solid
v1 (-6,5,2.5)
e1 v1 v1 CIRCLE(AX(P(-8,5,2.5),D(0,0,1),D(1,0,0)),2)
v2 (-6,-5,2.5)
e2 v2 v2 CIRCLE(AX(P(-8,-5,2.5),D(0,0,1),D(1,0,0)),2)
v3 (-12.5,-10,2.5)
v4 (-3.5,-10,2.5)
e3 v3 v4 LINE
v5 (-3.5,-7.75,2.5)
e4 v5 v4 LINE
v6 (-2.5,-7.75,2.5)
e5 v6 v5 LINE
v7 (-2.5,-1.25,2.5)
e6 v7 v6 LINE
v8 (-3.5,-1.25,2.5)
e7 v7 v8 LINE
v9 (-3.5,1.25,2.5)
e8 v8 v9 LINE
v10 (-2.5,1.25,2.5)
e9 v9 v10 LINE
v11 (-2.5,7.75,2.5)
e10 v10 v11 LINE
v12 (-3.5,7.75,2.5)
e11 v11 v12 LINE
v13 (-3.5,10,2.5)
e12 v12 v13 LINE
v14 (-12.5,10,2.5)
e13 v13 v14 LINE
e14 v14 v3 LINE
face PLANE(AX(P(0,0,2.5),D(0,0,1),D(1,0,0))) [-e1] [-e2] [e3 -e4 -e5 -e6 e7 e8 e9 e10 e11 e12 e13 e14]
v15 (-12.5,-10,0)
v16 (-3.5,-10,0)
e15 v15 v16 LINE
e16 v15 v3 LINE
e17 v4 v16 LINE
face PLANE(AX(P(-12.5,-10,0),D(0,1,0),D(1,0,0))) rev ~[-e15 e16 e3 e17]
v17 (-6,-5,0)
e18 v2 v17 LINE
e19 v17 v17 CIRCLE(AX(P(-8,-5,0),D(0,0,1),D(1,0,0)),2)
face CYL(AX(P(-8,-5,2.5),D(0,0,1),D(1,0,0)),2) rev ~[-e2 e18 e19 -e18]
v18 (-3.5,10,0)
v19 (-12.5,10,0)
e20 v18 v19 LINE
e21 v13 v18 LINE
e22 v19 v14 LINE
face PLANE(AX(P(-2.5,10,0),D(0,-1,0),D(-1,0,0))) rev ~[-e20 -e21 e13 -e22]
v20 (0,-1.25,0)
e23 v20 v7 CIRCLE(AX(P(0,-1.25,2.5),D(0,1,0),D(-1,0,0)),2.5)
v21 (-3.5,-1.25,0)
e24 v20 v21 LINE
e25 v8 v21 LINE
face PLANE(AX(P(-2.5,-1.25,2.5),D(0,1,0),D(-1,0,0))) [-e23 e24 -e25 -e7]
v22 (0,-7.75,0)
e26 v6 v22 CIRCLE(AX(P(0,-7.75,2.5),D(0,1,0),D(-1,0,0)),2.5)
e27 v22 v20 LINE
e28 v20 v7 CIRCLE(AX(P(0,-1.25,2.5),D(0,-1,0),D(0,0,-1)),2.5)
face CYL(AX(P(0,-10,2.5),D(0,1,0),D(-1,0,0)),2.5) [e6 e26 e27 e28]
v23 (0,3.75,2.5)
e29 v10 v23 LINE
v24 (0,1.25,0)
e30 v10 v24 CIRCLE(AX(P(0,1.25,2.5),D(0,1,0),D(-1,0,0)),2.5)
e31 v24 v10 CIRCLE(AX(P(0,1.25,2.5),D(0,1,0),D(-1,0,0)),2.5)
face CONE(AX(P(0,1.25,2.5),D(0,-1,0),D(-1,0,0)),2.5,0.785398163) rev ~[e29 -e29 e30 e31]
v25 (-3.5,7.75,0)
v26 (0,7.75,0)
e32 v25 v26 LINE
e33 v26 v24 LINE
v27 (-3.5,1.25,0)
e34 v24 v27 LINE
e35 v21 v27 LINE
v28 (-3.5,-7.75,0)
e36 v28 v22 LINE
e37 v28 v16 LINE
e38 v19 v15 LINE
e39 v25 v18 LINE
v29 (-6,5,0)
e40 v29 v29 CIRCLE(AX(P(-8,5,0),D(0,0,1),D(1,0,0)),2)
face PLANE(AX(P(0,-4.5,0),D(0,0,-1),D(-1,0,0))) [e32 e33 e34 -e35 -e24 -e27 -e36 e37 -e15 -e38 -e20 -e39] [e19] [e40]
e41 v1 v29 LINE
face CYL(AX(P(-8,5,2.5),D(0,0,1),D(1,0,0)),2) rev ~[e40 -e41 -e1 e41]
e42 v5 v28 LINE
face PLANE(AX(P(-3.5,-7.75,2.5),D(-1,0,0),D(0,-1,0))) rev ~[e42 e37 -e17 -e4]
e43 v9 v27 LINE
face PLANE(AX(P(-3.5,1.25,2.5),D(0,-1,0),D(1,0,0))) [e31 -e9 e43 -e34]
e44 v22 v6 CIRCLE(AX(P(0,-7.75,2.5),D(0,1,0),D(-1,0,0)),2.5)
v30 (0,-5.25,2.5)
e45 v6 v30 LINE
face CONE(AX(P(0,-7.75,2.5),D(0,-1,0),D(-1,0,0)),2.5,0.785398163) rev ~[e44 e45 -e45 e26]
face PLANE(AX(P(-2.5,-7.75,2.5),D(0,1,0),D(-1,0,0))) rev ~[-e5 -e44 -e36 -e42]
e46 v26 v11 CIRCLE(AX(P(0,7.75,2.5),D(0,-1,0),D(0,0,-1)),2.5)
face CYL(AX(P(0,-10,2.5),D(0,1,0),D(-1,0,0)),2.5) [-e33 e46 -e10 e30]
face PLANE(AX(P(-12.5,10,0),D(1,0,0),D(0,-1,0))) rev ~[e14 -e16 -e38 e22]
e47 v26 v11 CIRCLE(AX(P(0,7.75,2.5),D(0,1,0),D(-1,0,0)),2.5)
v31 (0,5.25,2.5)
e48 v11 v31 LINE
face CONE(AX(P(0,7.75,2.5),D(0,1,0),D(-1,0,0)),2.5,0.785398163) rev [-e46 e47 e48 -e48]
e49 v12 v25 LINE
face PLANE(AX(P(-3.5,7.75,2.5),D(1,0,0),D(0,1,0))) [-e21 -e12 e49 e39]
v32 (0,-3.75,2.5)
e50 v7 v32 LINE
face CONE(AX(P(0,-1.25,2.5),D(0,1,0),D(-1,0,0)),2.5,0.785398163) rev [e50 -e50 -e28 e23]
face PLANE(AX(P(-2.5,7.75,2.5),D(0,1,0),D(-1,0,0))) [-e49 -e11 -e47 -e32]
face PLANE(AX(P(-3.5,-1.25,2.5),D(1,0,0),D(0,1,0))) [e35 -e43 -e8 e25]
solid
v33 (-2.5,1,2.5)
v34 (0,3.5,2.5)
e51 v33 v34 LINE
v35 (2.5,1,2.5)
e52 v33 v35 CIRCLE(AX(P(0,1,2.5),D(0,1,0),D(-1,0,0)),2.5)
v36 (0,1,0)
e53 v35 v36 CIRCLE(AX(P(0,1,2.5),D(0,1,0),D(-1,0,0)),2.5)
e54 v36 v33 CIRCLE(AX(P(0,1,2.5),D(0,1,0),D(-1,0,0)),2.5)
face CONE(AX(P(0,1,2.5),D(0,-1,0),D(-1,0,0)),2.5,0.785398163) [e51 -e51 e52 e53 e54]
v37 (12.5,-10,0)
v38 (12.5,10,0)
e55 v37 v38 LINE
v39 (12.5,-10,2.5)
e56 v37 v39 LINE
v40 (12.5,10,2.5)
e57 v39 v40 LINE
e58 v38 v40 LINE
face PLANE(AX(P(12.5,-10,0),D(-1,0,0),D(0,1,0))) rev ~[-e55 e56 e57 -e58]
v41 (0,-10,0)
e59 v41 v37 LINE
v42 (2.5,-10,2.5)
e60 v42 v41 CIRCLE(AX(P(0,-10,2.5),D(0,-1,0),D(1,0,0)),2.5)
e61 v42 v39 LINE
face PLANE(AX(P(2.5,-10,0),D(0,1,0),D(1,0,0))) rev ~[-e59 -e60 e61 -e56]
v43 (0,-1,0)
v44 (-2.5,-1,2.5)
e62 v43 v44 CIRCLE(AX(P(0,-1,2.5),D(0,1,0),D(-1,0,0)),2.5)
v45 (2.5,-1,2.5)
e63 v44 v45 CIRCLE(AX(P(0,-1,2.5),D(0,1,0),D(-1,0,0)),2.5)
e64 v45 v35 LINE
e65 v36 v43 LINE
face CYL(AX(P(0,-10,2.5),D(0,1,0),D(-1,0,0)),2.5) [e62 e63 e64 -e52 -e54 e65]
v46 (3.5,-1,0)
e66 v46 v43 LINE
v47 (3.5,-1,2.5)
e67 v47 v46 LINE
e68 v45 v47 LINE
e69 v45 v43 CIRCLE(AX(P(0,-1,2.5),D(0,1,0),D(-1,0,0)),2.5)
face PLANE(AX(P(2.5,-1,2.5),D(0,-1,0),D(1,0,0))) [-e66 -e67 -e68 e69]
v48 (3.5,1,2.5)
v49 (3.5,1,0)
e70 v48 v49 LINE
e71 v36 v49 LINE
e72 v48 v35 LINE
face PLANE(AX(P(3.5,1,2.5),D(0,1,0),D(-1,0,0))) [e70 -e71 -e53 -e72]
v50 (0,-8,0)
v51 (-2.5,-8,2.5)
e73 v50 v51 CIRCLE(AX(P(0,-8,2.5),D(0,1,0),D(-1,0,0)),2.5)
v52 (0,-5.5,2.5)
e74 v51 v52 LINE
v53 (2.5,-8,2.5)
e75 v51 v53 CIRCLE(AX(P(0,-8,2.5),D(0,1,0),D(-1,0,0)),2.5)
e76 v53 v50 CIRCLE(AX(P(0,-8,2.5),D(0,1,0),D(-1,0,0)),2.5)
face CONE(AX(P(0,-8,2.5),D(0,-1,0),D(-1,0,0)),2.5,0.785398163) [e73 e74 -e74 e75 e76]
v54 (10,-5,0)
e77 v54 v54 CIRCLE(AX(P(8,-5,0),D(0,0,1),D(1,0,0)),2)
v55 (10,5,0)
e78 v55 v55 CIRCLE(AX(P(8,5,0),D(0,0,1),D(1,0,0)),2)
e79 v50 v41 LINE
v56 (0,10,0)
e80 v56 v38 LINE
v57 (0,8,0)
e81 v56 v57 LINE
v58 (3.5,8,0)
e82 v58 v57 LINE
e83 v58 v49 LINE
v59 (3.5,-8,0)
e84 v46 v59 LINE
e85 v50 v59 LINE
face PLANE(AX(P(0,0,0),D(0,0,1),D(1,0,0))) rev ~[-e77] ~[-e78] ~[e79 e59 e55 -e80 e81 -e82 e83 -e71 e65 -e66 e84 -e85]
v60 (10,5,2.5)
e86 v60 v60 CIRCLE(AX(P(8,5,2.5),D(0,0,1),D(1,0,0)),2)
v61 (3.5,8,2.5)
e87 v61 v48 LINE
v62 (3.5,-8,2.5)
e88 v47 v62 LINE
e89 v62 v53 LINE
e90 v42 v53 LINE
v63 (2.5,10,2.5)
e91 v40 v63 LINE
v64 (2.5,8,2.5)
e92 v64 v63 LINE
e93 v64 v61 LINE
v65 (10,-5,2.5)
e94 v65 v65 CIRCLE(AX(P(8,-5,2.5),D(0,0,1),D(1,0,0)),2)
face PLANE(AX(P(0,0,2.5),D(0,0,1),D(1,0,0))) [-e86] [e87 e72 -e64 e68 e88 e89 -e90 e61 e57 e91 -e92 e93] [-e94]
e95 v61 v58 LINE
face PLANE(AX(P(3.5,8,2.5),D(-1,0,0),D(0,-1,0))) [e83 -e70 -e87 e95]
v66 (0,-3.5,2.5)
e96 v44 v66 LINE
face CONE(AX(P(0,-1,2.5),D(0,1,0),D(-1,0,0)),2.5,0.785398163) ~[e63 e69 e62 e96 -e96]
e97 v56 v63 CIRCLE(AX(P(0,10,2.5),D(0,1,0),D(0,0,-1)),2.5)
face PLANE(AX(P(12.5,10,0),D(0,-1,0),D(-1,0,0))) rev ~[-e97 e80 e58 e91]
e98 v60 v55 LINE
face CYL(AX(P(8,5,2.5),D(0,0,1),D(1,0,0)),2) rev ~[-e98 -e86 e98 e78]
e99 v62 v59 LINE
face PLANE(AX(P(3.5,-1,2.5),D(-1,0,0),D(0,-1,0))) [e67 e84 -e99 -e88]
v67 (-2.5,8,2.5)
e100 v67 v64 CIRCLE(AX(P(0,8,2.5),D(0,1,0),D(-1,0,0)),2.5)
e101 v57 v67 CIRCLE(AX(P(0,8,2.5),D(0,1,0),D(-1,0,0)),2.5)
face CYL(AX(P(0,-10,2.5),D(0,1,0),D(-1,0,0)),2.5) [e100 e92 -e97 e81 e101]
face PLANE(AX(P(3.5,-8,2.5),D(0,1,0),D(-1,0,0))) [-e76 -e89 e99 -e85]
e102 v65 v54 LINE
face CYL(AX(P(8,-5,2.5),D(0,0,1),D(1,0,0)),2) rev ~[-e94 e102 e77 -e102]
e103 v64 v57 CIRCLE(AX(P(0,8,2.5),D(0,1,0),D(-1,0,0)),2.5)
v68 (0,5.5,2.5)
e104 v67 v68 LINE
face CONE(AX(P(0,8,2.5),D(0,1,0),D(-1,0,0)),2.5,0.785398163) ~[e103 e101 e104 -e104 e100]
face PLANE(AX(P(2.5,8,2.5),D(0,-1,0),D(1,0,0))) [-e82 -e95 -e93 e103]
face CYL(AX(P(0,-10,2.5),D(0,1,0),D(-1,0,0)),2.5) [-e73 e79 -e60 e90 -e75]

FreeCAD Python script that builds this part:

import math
import FreeCAD as App
import Part
import Sketcher

V = App.Vector

doc = App.newDocument("Part")
params = doc.addObject("Spreadsheet::Sheet", "Params")
for row, (alias, value) in enumerate([
    ("sketch1_height", "20 mm"),
    ("pad1_length", "2.5 mm"),
    ("sketch2_height", "2 mm"),
    ("sketch2_width", "2.5 mm"),
    ("revolution_angle", "360 deg"),
    ("sketch3_width", "1 mm"),
    ("sketch3_height", "7 mm"),
    ("sketch3_height2", "2.5 mm"),
    ("sketch3_height3", "2.25 mm"),
    ("pocket1_length", "2.5 mm"),
    ("sketch4_diameter", "4 mm"),
    ("pocket2_length", "2.5 mm"),
    ("sketch5_height", "2 mm"),
    ("sketch5_width", "2.5 mm"),
    ("sketch5_height2", "1.5 mm"),
    ("pad2_length", "2.5 mm"),
    ("sketch6_radius", "2.5 mm"),
    ("pad3_length", "6.5 mm"),
    ("sketch7_radius", "2.5 mm"),
    ("pad4_length", "6.5 mm"),
], start=1):
    params.set(f"A{row}", alias)
    params.set(f"B{row}", "=" + value)
    params.setAlias(f"B{row}", alias)

body = doc.addObject("PartDesign::Body", "Body")
body.AllowCompound = True

# Sketch on XY plane
sketch1 = body.newObject("Sketcher::SketchObject", "Sketch")
sketch1.AttachmentSupport = (doc.getObject("XY_Plane"), [""])
sketch1.MapMode = "FlatFace"
sketch1.addGeometry(Part.LineSegment(V(2, -10, 0), V(12, -10, 0)), False)
sketch1.addGeometry(Part.LineSegment(V(12, -10, 0), V(12, 10, 0)), False)
sketch1.addGeometry(Part.LineSegment(V(12, 10, 0), V(2, 10, 0)), False)
sketch1.addGeometry(Part.LineSegment(V(2, 10, 0), V(2, -10, 0)), False)
sketch1.addGeometry(Part.LineSegment(V(-2, 10, 0), V(-12, 10, 0)), False)
sketch1.addGeometry(Part.LineSegment(V(-12, 10, 0), V(-12, -10, 0)), False)
sketch1.addGeometry(Part.LineSegment(V(-12, -10, 0), V(-2, -10, 0)), False)
sketch1.addGeometry(Part.LineSegment(V(-2, -10, 0), V(-2, 10, 0)), False)
sketch1.addConstraint(Sketcher.Constraint("Coincident", 0, 2, 1, 1))
sketch1.addConstraint(Sketcher.Constraint("Coincident", 1, 2, 2, 1))
sketch1.addConstraint(Sketcher.Constraint("Coincident", 2, 2, 3, 1))
sketch1.addConstraint(Sketcher.Constraint("Coincident", 3, 2, 0, 1))
sketch1.addConstraint(Sketcher.Constraint("Coincident", 4, 2, 5, 1))
sketch1.addConstraint(Sketcher.Constraint("Coincident", 5, 2, 6, 1))
sketch1.addConstraint(Sketcher.Constraint("Coincident", 6, 2, 7, 1))
sketch1.addConstraint(Sketcher.Constraint("Coincident", 7, 2, 4, 1))
sketch1.addConstraint(Sketcher.Constraint("Horizontal", 0))
sketch1.addConstraint(Sketcher.Constraint("Vertical", 1))
sketch1.addConstraint(Sketcher.Constraint("Horizontal", 2))
sketch1.addConstraint(Sketcher.Constraint("Vertical", 3))
sketch1.addConstraint(Sketcher.Constraint("Horizontal", 4))
sketch1.addConstraint(Sketcher.Constraint("Vertical", 5))
sketch1.addConstraint(Sketcher.Constraint("Horizontal", 6))
sketch1.addConstraint(Sketcher.Constraint("Vertical", 7))
sketch1.addConstraint(Sketcher.Constraint("Symmetric", 0, 2, 4, 2, -1, 1))
sketch1.addConstraint(Sketcher.Constraint("Symmetric", 2, 2, 6, 2, -1, 1))
sketch1.addConstraint(Sketcher.Constraint("Horizontal", 2, 2, 4, 2))
sketch1.addConstraint(Sketcher.Constraint("DistanceY", 1, 1, 1, 2, 20.0))
sketch1.addConstraint(Sketcher.Constraint("DistanceX", 4, 2, 1, 2, 25.0))
sketch1.addConstraint(Sketcher.Constraint("DistanceX", 6, 2, 3, 2, 5.0))
sketch1.setExpression("Constraints[19]", "Params.sketch1_height")
pad1 = body.newObject("PartDesign::Pad", "Pad")
pad1.Profile = sketch1
pad1.setExpression("Length", "Params.pad1_length")

# Sketch on XY plane
sketch2 = body.newObject("Sketcher::SketchObject", "Sketch001")
sketch2.AttachmentSupport = (doc.getObject("XY_Plane"), [""])
sketch2.MapMode = "FlatFace"
sketch2.AttachmentOffset = App.Placement(V(0, 0, 2.5), App.Rotation())
sketch2.addGeometry(Part.LineSegment(V(-2.5, 10, 0), V(-2.5, 8, 0)), False)
sketch2.addGeometry(Part.LineSegment(V(-2.5, 8, 0), V(0, 5.5, 0)), False)
sketch2.addGeometry(Part.LineSegment(V(0, 5.5, 0), V(0, 10, 0)), False)
sketch2.addGeometry(Part.LineSegment(V(0, 10, 0), V(-2.5, 10, 0)), False)
sketch2.addGeometry(Part.LineSegment(V(-2.5, 7.8, 0), V(-2.5, 1.2, 0)), False)
sketch2.addGeometry(Part.LineSegment(V(-2.5, 1.2, 0), V(0, 3.8, 0)), False)
sketch2.addGeometry(Part.LineSegment(V(0, 3.8, 0), V(0, 5.2, 0)), False)
sketch2.addGeometry(Part.LineSegment(V(0, 5.2, 0), V(-2.5, 7.8, 0)), False)
sketch2.addGeometry(Part.LineSegment(V(-2.5, 1, 0), V(-2.5, -1, 0)), False)
sketch2.addGeometry(Part.LineSegment(V(-2.5, -1, 0), V(0, -3.5, 0)), False)
sketch2.addGeometry(Part.LineSegment(V(0, -3.5, 0), V(0, 3.5, 0)), False)
sketch2.addGeometry(Part.LineSegment(V(0, 3.5, 0), V(-2.5, 1, 0)), False)
sketch2.addGeometry(Part.LineSegment(V(-2.5, -1.2, 0), V(-2.5, -7.8, 0)), False)
sketch2.addGeometry(Part.LineSegment(V(-2.5, -7.8, 0), V(0, -5.2, 0)), False)
sketch2.addGeometry(Part.LineSegment(V(0, -5.2, 0), V(0, -3.8, 0)), False)
sketch2.addGeometry(Part.LineSegment(V(0, -3.8, 0), V(-2.5, -1.2, 0)), False)
sketch2.addGeometry(Part.LineSegment(V(-2.5, -8, 0), V(-2.5, -10, 0)), False)
sketch2.addGeometry(Part.LineSegment(V(-2.5, -10, 0), V(0, -10, 0)), False)
sketch2.addGeometry(Part.LineSegment(V(0, -10, 0), V(0, -5.5, 0)), False)
sketch2.addGeometry(Part.LineSegment(V(0, -5.5, 0), V(-2.5, -8, 0)), False)
sketch2.addConstraint(Sketcher.Constraint("Coincident", 0, 2, 1, 1))
sketch2.addConstraint(Sketcher.Constraint("Coincident", 1, 2, 2, 1))
sketch2.addConstraint(Sketcher.Constraint("Coincident", 2, 2, 3, 1))
sketch2.addConstraint(Sketcher.Constraint("Coincident", 3, 2, 0, 1))
sketch2.addConstraint(Sketcher.Constraint("Coincident", 4, 2, 5, 1))
sketch2.addConstraint(Sketcher.Constraint("Coincident", 5, 2, 6, 1))
sketch2.addConstraint(Sketcher.Constraint("Coincident", 6, 2, 7, 1))
sketch2.addConstraint(Sketcher.Constraint("Coincident", 7, 2, 4, 1))
sketch2.addConstraint(Sketcher.Constraint("Coincident", 8, 2, 9, 1))
sketch2.addConstraint(Sketcher.Constraint("Coincident", 9, 2, 10, 1))
sketch2.addConstraint(Sketcher.Constraint("Coincident", 10, 2, 11, 1))
sketch2.addConstraint(Sketcher.Constraint("Coincident", 11, 2, 8, 1))
sketch2.addConstraint(Sketcher.Constraint("Coincident", 12, 2, 13, 1))
sketch2.addConstraint(Sketcher.Constraint("Coincident", 13, 2, 14, 1))
sketch2.addConstraint(Sketcher.Constraint("Coincident", 14, 2, 15, 1))
sketch2.addConstraint(Sketcher.Constraint("Coincident", 15, 2, 12, 1))
sketch2.addConstraint(Sketcher.Constraint("Coincident", 16, 2, 17, 1))
sketch2.addConstraint(Sketcher.Constraint("Coincident", 17, 2, 18, 1))
sketch2.addConstraint(Sketcher.Constraint("Coincident", 18, 2, 19, 1))
sketch2.addConstraint(Sketcher.Constraint("Coincident", 19, 2, 16, 1))
sketch2.addConstraint(Sketcher.Constraint("Vertical", 0))
sketch2.addConstraint(Sketcher.Constraint("Vertical", 2))
sketch2.addConstraint(Sketcher.Constraint("Horizontal", 3))
sketch2.addConstraint(Sketcher.Constraint("Vertical", 4))
sketch2.addConstraint(Sketcher.Constraint("Vertical", 6))
sketch2.addConstraint(Sketcher.Constraint("Vertical", 8))
sketch2.addConstraint(Sketcher.Constraint("Vertical", 10))
sketch2.addConstraint(Sketcher.Constraint("Vertical", 12))
sketch2.addConstraint(Sketcher.Constraint("Vertical", 14))
sketch2.addConstraint(Sketcher.Constraint("Vertical", 16))
sketch2.addConstraint(Sketcher.Constraint("Horizontal", 17))
sketch2.addConstraint(Sketcher.Constraint("Vertical", 18))
sketch2.addConstraint(Sketcher.Constraint("Symmetric", 9, 2, 10, 2, -1, 1))
sketch2.addConstraint(Sketcher.Constraint("Symmetric", 6, 2, 13, 2, -1, 1))
sketch2.addConstraint(Sketcher.Constraint("Symmetric", 2, 2, 17, 2, -1, 1))
sketch2.addConstraint(Sketcher.Constraint("Symmetric", 7, 2, 12, 2, -1))
sketch2.addConstraint(Sketcher.Constraint("Symmetric", 5, 2, 14, 2, -1))
sketch2.addConstraint(Sketcher.Constraint("Symmetric", 1, 2, 18, 2, -1))
sketch2.addConstraint(Sketcher.Constraint("Symmetric", 0, 2, 19, 2, -1))
sketch2.addConstraint(Sketcher.Constraint("Perpendicular", 1, 5))
sketch2.addConstraint(Sketcher.Constraint("Perpendicular", 5, 7))
sketch2.addConstraint(Sketcher.Constraint("Parallel", 7, 9))
sketch2.addConstraint(Sketcher.Constraint("Perpendicular", 9, 11))
sketch2.addConstraint(Sketcher.Constraint("Parallel", 11, 13))
sketch2.addConstraint(Sketcher.Constraint("Perpendicular", 13, 15))
sketch2.addConstraint(Sketcher.Constraint("Vertical", 3, 2, 4, 2))
sketch2.addConstraint(Sketcher.Constraint("Vertical", 7, 2, 8, 2))
sketch2.addConstraint(Sketcher.Constraint("Equal", 0, 8))
sketch2.addConstraint(Sketcher.Constraint("DistanceY", 0, 2, 0, 1, 2.0))
sketch2.addConstraint(Sketcher.Constraint("DistanceX", 3, 2, 3, 1, 2.5))
sketch2.addConstraint(Sketcher.Constraint("DistanceY", 10, 2, 1, 2, 2.0))
sketch2.addConstraint(Sketcher.Constraint("DistanceY", 15, 2, 4, 2, 2.5))
sketch2.addConstraint(Sketcher.Constraint("DistanceY", 6, 2, 1, 2, 0.25))
sketch2.setExpression("Constraints[48]", "Params.sketch2_height")
sketch2.setExpression("Constraints[49]", "Params.sketch2_width")
revolution = body.newObject("PartDesign::Revolution", "Revolution")
revolution.Profile = sketch2
revolution.ReferenceAxis = (sketch2, ["V_Axis"])
revolution.setExpression("Angle", "Params.revolution_angle")

# Sketch on XY plane
sketch3 = body.newObject("Sketcher::SketchObject", "Sketch002")
sketch3.AttachmentSupport = (doc.getObject("XY_Plane"), [""])
sketch3.MapMode = "FlatFace"
sketch3.AttachmentOffset = App.Placement(V(0, 0, 2.5), App.Rotation())
sketch3.addGeometry(Part.LineSegment(V(-2.5, -10, 0), V(-2.5, -7.8, 0)), False)
sketch3.addGeometry(Part.LineSegment(V(-2.5, -7.8, 0), V(-3.5, -7.8, 0)), False)
sketch3.addGeometry(Part.LineSegment(V(-3.5, -7.8, 0), V(-3.5, -10, 0)), False)
sketch3.addGeometry(Part.LineSegment(V(-3.5, -10, 0), V(-2.5, -10, 0)), False)
sketch3.addGeometry(Part.LineSegment(V(-3.5, 7.8, 0), V(-2.5, 7.8, 0)), False)
sketch3.addGeometry(Part.LineSegment(V(-2.5, 7.8, 0), V(-2.5, 10, 0)), False)
sketch3.addGeometry(Part.LineSegment(V(-2.5, 10, 0), V(-3.5, 10, 0)), False)
sketch3.addGeometry(Part.LineSegment(V(-3.5, 10, 0), V(-3.5, 7.8, 0)), False)
sketch3.addGeometry(Part.LineSegment(V(-3.5, -1.2, 0), V(-2.5, -1.2, 0)), False)
sketch3.addGeometry(Part.LineSegment(V(-2.5, -1.2, 0), V(-2.5, 1.2, 0)), False)
sketch3.addGeometry(Part.LineSegment(V(-2.5, 1.2, 0), V(-3.5, 1.2, 0)), False)
sketch3.addGeometry(Part.LineSegment(V(-3.5, 1.2, 0), V(-3.5, -1.2, 0)), False)
sketch3.addGeometry(Part.LineSegment(V(3.5, -1, 0), V(2.5, -1, 0)), False)
sketch3.addGeometry(Part.LineSegment(V(2.5, -1, 0), V(2.5, -8, 0)), False)
sketch3.addGeometry(Part.LineSegment(V(2.5, -8, 0), V(3.5, -8, 0)), False)
sketch3.addGeometry(Part.LineSegment(V(3.5, -8, 0), V(3.5, -1, 0)), False)
sketch3.addGeometry(Part.LineSegment(V(3.5, 8, 0), V(2.5, 8, 0)), False)
sketch3.addGeometry(Part.LineSegment(V(2.5, 8, 0), V(2.5, 1, 0)), False)
sketch3.addGeometry(Part.LineSegment(V(2.5, 1, 0), V(3.5, 1, 0)), False)
sketch3.addGeometry(Part.LineSegment(V(3.5, 1, 0), V(3.5, 8, 0)), False)
sketch3.addConstraint(Sketcher.Constraint("Coincident", 0, 2, 1, 1))
sketch3.addConstraint(Sketcher.Constraint("Coincident", 1, 2, 2, 1))
sketch3.addConstraint(Sketcher.Constraint("Coincident", 2, 2, 3, 1))
sketch3.addConstraint(Sketcher.Constraint("Coincident", 3, 2, 0, 1))
sketch3.addConstraint(Sketcher.Constraint("Coincident", 4, 2, 5, 1))
sketch3.addConstraint(Sketcher.Constraint("Coincident", 5, 2, 6, 1))
sketch3.addConstraint(Sketcher.Constraint("Coincident", 6, 2, 7, 1))
sketch3.addConstraint(Sketcher.Constraint("Coincident", 7, 2, 4, 1))
sketch3.addConstraint(Sketcher.Constraint("Coincident", 8, 2, 9, 1))
sketch3.addConstraint(Sketcher.Constraint("Coincident", 9, 2, 10, 1))
sketch3.addConstraint(Sketcher.Constraint("Coincident", 10, 2, 11, 1))
sketch3.addConstraint(Sketcher.Constraint("Coincident", 11, 2, 8, 1))
sketch3.addConstraint(Sketcher.Constraint("Coincident", 12, 2, 13, 1))
sketch3.addConstraint(Sketcher.Constraint("Coincident", 13, 2, 14, 1))
sketch3.addConstraint(Sketcher.Constraint("Coincident", 14, 2, 15, 1))
sketch3.addConstraint(Sketcher.Constraint("Coincident", 15, 2, 12, 1))
sketch3.addConstraint(Sketcher.Constraint("Coincident", 16, 2, 17, 1))
sketch3.addConstraint(Sketcher.Constraint("Coincident", 17, 2, 18, 1))
sketch3.addConstraint(Sketcher.Constraint("Coincident", 18, 2, 19, 1))
sketch3.addConstraint(Sketcher.Constraint("Coincident", 19, 2, 16, 1))
sketch3.addConstraint(Sketcher.Constraint("Vertical", 0))
sketch3.addConstraint(Sketcher.Constraint("Horizontal", 1))
sketch3.addConstraint(Sketcher.Constraint("Vertical", 2))
sketch3.addConstraint(Sketcher.Constraint("Horizontal", 3))
sketch3.addConstraint(Sketcher.Constraint("Horizontal", 4))
sketch3.addConstraint(Sketcher.Constraint("Vertical", 5))
sketch3.addConstraint(Sketcher.Constraint("Horizontal", 6))
sketch3.addConstraint(Sketcher.Constraint("Vertical", 7))
sketch3.addConstraint(Sketcher.Constraint("Horizontal", 8))
sketch3.addConstraint(Sketcher.Constraint("Vertical", 9))
sketch3.addConstraint(Sketcher.Constraint("Horizontal", 10))
sketch3.addConstraint(Sketcher.Constraint("Vertical", 11))
sketch3.addConstraint(Sketcher.Constraint("Horizontal", 12))
sketch3.addConstraint(Sketcher.Constraint("Vertical", 13))
sketch3.addConstraint(Sketcher.Constraint("Horizontal", 14))
sketch3.addConstraint(Sketcher.Constraint("Vertical", 15))
sketch3.addConstraint(Sketcher.Constraint("Horizontal", 16))
sketch3.addConstraint(Sketcher.Constraint("Vertical", 17))
sketch3.addConstraint(Sketcher.Constraint("Horizontal", 18))
sketch3.addConstraint(Sketcher.Constraint("Vertical", 19))
sketch3.addConstraint(Sketcher.Constraint("Symmetric", 0, 2, 4, 2, -1))
sketch3.addConstraint(Sketcher.Constraint("Symmetric", 2, 2, 6, 2, -1))
sketch3.addConstraint(Sketcher.Constraint("Symmetric", 13, 2, 16, 2, -1))
sketch3.addConstraint(Sketcher.Constraint("Symmetric", 15, 2, 18, 2, -1))
sketch3.addConstraint(Sketcher.Constraint("Vertical", 5, 2, 8, 2))
sketch3.addConstraint(Sketcher.Constraint("Vertical", 7, 2, 10, 2))
sketch3.addConstraint(Sketcher.Constraint("Equal", 10, 12))
sketch3.addConstraint(Sketcher.Constraint("DistanceX", 1, 2, 1, 1, 1.0))
sketch3.addConstraint(Sketcher.Constraint("DistanceY", 13, 2, 13, 1, 7.0))
sketch3.addConstraint(Sketcher.Constraint("DistanceY", 9, 1, 9, 2, 2.5))
sketch3.addConstraint(Sketcher.Constraint("DistanceY", 12, 2, -1, 1, 1.0))
sketch3.addConstraint(Sketcher.Constraint("DistanceX", 1, 2, 14, 2, 7.0))
sketch3.addConstraint(Sketcher.Constraint("DistanceY", 0, 1, 0, 2, 2.25))
sketch3.addConstraint(Sketcher.Constraint("DistanceX", 0, 2, -1, 1, 2.5))
sketch3.addConstraint(Sketcher.Constraint("DistanceY", 12, 2, 9, 2, 2.25))
sketch3.addConstraint(Sketcher.Constraint("DistanceY", 2, 2, -1, 1, 10.0))
sketch3.setExpression("Constraints[47]", "Params.sketch3_width")
sketch3.setExpression("Constraints[48]", "Params.sketch3_height")
sketch3.setExpression("Constraints[49]", "Params.sketch3_height2")
sketch3.setExpression("Constraints[52]", "Params.sketch3_height3")
pocket1 = body.newObject("PartDesign::Pocket", "Pocket")
pocket1.Profile = sketch3
pocket1.setExpression("Length", "Params.pocket1_length")

# Sketch on XY plane
sketch4 = body.newObject("Sketcher::SketchObject", "Sketch003")
sketch4.AttachmentSupport = (doc.getObject("XY_Plane"), [""])
sketch4.MapMode = "FlatFace"
sketch4.AttachmentOffset = App.Placement(V(0, 0, 2.5), App.Rotation())
sketch4.addGeometry(Part.Circle(V(8, -5, 0), V(0, 0, 1), 2), False)
sketch4.addGeometry(Part.Circle(V(8, 5, 0), V(0, 0, 1), 2), False)
sketch4.addGeometry(Part.Circle(V(-8, -5, 0), V(0, 0, 1), 2), False)
sketch4.addGeometry(Part.Circle(V(-8, 5, 0), V(0, 0, 1), 2), False)
sketch4.addConstraint(Sketcher.Constraint("Equal", 0, 1))
sketch4.addConstraint(Sketcher.Constraint("Equal", 1, 2))
sketch4.addConstraint(Sketcher.Constraint("Equal", 2, 3))
sketch4.addConstraint(Sketcher.Constraint("Symmetric", 1, 3, 2, 3, -1, 1))
sketch4.addConstraint(Sketcher.Constraint("Symmetric", 0, 3, 3, 3, -1, 1))
sketch4.addConstraint(Sketcher.Constraint("Symmetric", 0, 3, 2, 3, -2))
sketch4.addConstraint(Sketcher.Constraint("Diameter", 0, 4.0))
sketch4.addConstraint(Sketcher.Constraint("DistanceY", 0, 3, -1, 1, 5.0))
sketch4.addConstraint(Sketcher.Constraint("DistanceX", 2, 3, 0, 3, 16.0))
sketch4.setExpression("Constraints[6]", "Params.sketch4_diameter")
pocket2 = body.newObject("PartDesign::Pocket", "Pocket001")
pocket2.Profile = sketch4
pocket2.setExpression("Length", "Params.pocket2_length")

# Sketch on XY plane
sketch5 = body.newObject("Sketcher::SketchObject", "Sketch004")
sketch5.AttachmentSupport = (doc.getObject("XY_Plane"), [""])
sketch5.MapMode = "FlatFace"
sketch5.addGeometry(Part.LineSegment(V(0, 8, 0), V(0, 10, 0)), False)
sketch5.addGeometry(Part.LineSegment(V(0, 10, 0), V(2.5, 10, 0)), False)
sketch5.addGeometry(Part.LineSegment(V(2.5, 10, 0), V(2.5, 8, 0)), False)
sketch5.addGeometry(Part.LineSegment(V(2.5, 8, 0), V(0, 8, 0)), False)
sketch5.addGeometry(Part.LineSegment(V(2.5, -1, 0), V(0, -1, 0)), False)
sketch5.addGeometry(Part.LineSegment(V(0, -1, 0), V(0, 1, 0)), False)
sketch5.addGeometry(Part.LineSegment(V(0, 1, 0), V(2.5, 1, 0)), False)
sketch5.addGeometry(Part.LineSegment(V(2.5, 1, 0), V(2.5, -1, 0)), False)
sketch5.addGeometry(Part.LineSegment(V(0, -8, 0), V(2.5, -8, 0)), False)
sketch5.addGeometry(Part.LineSegment(V(2.5, -8, 0), V(2.5, -10, 0)), False)
sketch5.addGeometry(Part.LineSegment(V(2.5, -10, 0), V(0, -10, 0)), False)
sketch5.addGeometry(Part.LineSegment(V(0, -10, 0), V(0, -8, 0)), False)
sketch5.addGeometry(Part.LineSegment(V(-2.5, -3.8, 0), V(0, -3.8, 0)), False)
sketch5.addGeometry(Part.LineSegment(V(0, -3.8, 0), V(0, -5.2, 0)), False)
sketch5.addGeometry(Part.LineSegment(V(0, -5.2, 0), V(-2.5, -5.2, 0)), False)
sketch5.addGeometry(Part.LineSegment(V(-2.5, -5.2, 0), V(-2.5, -3.8, 0)), False)
sketch5.addGeometry(Part.LineSegment(V(-2.5, 5.2, 0), V(0, 5.2, 0)), False)
sketch5.addGeometry(Part.LineSegment(V(0, 5.2, 0), V(0, 3.8, 0)), False)
sketch5.addGeometry(Part.LineSegment(V(0, 3.8, 0), V(-2.5, 3.8, 0)), False)
sketch5.addGeometry(Part.LineSegment(V(-2.5, 3.8, 0), V(-2.5, 5.2, 0)), False)
sketch5.addConstraint(Sketcher.Constraint("Coincident", 0, 2, 1, 1))
sketch5.addConstraint(Sketcher.Constraint("Coincident", 1, 2, 2, 1))
sketch5.addConstraint(Sketcher.Constraint("Coincident", 2, 2, 3, 1))
sketch5.addConstraint(Sketcher.Constraint("Coincident", 3, 2, 0, 1))
sketch5.addConstraint(Sketcher.Constraint("Coincident", 4, 2, 5, 1))
sketch5.addConstraint(Sketcher.Constraint("Coincident", 5, 2, 6, 1))
sketch5.addConstraint(Sketcher.Constraint("Coincident", 6, 2, 7, 1))
sketch5.addConstraint(Sketcher.Constraint("Coincident", 7, 2, 4, 1))
sketch5.addConstraint(Sketcher.Constraint("Coincident", 8, 2, 9, 1))
sketch5.addConstraint(Sketcher.Constraint("Coincident", 9, 2, 10, 1))
sketch5.addConstraint(Sketcher.Constraint("Coincident", 10, 2, 11, 1))
sketch5.addConstraint(Sketcher.Constraint("Coincident", 11, 2, 8, 1))
sketch5.addConstraint(Sketcher.Constraint("Coincident", 12, 2, 13, 1))
sketch5.addConstraint(Sketcher.Constraint("Coincident", 13, 2, 14, 1))
sketch5.addConstraint(Sketcher.Constraint("Coincident", 14, 2, 15, 1))
sketch5.addConstraint(Sketcher.Constraint("Coincident", 15, 2, 12, 1))
sketch5.addConstraint(Sketcher.Constraint("Coincident", 16, 2, 17, 1))
sketch5.addConstraint(Sketcher.Constraint("Coincident", 17, 2, 18, 1))
sketch5.addConstraint(Sketcher.Constraint("Coincident", 18, 2, 19, 1))
sketch5.addConstraint(Sketcher.Constraint("Coincident", 19, 2, 16, 1))
sketch5.addConstraint(Sketcher.Constraint("Vertical", 0))
sketch5.addConstraint(Sketcher.Constraint("Horizontal", 1))
sketch5.addConstraint(Sketcher.Constraint("Vertical", 2))
sketch5.addConstraint(Sketcher.Constraint("Horizontal", 3))
sketch5.addConstraint(Sketcher.Constraint("Horizontal", 4))
sketch5.addConstraint(Sketcher.Constraint("Vertical", 5))
sketch5.addConstraint(Sketcher.Constraint("Horizontal", 6))
sketch5.addConstraint(Sketcher.Constraint("Vertical", 7))
sketch5.addConstraint(Sketcher.Constraint("Horizontal", 8))
sketch5.addConstraint(Sketcher.Constraint("Vertical", 9))
sketch5.addConstraint(Sketcher.Constraint("Horizontal", 10))
sketch5.addConstraint(Sketcher.Constraint("Vertical", 11))
sketch5.addConstraint(Sketcher.Constraint("Horizontal", 12))
sketch5.addConstraint(Sketcher.Constraint("Vertical", 13))
sketch5.addConstraint(Sketcher.Constraint("Horizontal", 14))
sketch5.addConstraint(Sketcher.Constraint("Vertical", 15))
sketch5.addConstraint(Sketcher.Constraint("Horizontal", 16))
sketch5.addConstraint(Sketcher.Constraint("Vertical", 17))
sketch5.addConstraint(Sketcher.Constraint("Horizontal", 18))
sketch5.addConstraint(Sketcher.Constraint("Vertical", 19))
sketch5.addConstraint(Sketcher.Constraint("Symmetric", 4, 2, 5, 2, -1, 1))
sketch5.addConstraint(Sketcher.Constraint("Symmetric", 0, 2, 10, 2, -1, 1))
sketch5.addConstraint(Sketcher.Constraint("Symmetric", 13, 2, 16, 2, -1, 1))
sketch5.addConstraint(Sketcher.Constraint("Symmetric", 2, 2, 8, 2, -1))
sketch5.addConstraint(Sketcher.Constraint("Symmetric", 12, 2, 17, 2, -1))
sketch5.addConstraint(Sketcher.Constraint("PointOnObject", 0, 2, -2))
sketch5.addConstraint(Sketcher.Constraint("Vertical", 2, 2, 6, 2))
sketch5.addConstraint(Sketcher.Constraint("Vertical", 15, 2, 18, 2))
sketch5.addConstraint(Sketcher.Constraint("Equal", 10, 12))
sketch5.addConstraint(Sketcher.Constraint("Equal", 2, 5))
sketch5.addConstraint(Sketcher.Constraint("DistanceY", 0, 1, 0, 2, 2.0))
sketch5.addConstraint(Sketcher.Constraint("DistanceX", 1, 1, 1, 2, 2.5))
sketch5.addConstraint(Sketcher.Constraint("DistanceY", 13, 2, 13, 1, 1.5))
sketch5.addConstraint(Sketcher.Constraint("DistanceY", -1, 1, 0, 2, 10.0))
sketch5.addConstraint(Sketcher.Constraint("DistanceY", 12, 2, -1, 1, 3.75))
sketch5.setExpression("Constraints[50]", "Params.sketch5_height")
sketch5.setExpression("Constraints[51]", "Params.sketch5_width")
sketch5.setExpression("Constraints[52]", "Params.sketch5_height2")
pad2 = body.newObject("PartDesign::Pad", "Pad001")
pad2.Profile = sketch5
pad2.setExpression("Length", "Params.pad2_length")

# Sketch on XZ plane
sketch6 = body.newObject("Sketcher::SketchObject", "Sketch005")
sketch6.AttachmentSupport = (doc.getObject("XZ_Plane"), [""])
sketch6.MapMode = "FlatFace"
sketch6.AttachmentOffset = App.Placement(V(0, 0, 4.5), App.Rotation())
sketch6.addGeometry(Part.LineSegment(V(-2.5, 0, 0), V(0, 0, 0)), False)
sketch6.addGeometry(Part.ArcOfCircle(Part.Circle(V(0, 2.5, 0), V(0, 0, 1), 2.5), math.radians(180), math.radians(270)), False)
sketch6.addGeometry(Part.LineSegment(V(-2.5, 2.5, 0), V(-2.5, 0, 0)), False)
sketch6.addConstraint(Sketcher.Constraint("Tangent", 0, 2, 1, 2))
sketch6.addConstraint(Sketcher.Constraint("Tangent", 1, 1, 2, 1))
sketch6.addConstraint(Sketcher.Constraint("Coincident", 2, 2, 0, 1))
sketch6.addConstraint(Sketcher.Constraint("Horizontal", 0))
sketch6.addConstraint(Sketcher.Constraint("Vertical", 2))
sketch6.addConstraint(Sketcher.Constraint("Coincident", 0, 2, -1, 1))
sketch6.addConstraint(Sketcher.Constraint("Radius", 1, 2.5))
sketch6.setExpression("Constraints[6]", "Params.sketch6_radius")
pad3 = body.newObject("PartDesign::Pad", "Pad002")
pad3.Profile = sketch6
pad3.setExpression("Length", "Params.pad3_length")
pad3.Midplane = True

# Sketch on XZ plane
sketch7 = body.newObject("Sketcher::SketchObject", "Sketch006")
sketch7.AttachmentSupport = (doc.getObject("XZ_Plane"), [""])
sketch7.MapMode = "FlatFace"
sketch7.AttachmentOffset = App.Placement(V(0, 0, -4.5), App.Rotation())
sketch7.addGeometry(Part.ArcOfCircle(Part.Circle(V(0, 2.5, 0), V(0, 0, 1), 2.5), math.radians(180), math.radians(270)), False)
sketch7.addGeometry(Part.LineSegment(V(-2.5, 2.5, 0), V(-2.5, 0, 0)), False)
sketch7.addGeometry(Part.LineSegment(V(-2.5, 0, 0), V(0, 0, 0)), False)
sketch7.addConstraint(Sketcher.Constraint("Tangent", 0, 1, 1, 1))
sketch7.addConstraint(Sketcher.Constraint("Coincident", 1, 2, 2, 1))
sketch7.addConstraint(Sketcher.Constraint("Tangent", 2, 2, 0, 2))
sketch7.addConstraint(Sketcher.Constraint("Vertical", 1))
sketch7.addConstraint(Sketcher.Constraint("Horizontal", 2))
sketch7.addConstraint(Sketcher.Constraint("Coincident", 2, 2, -1, 1))
sketch7.addConstraint(Sketcher.Constraint("Radius", 0, 2.5))
sketch7.setExpression("Constraints[6]", "Params.sketch7_radius")
pad4 = body.newObject("PartDesign::Pad", "Pad003")
pad4.Profile = sketch7
pad4.setExpression("Length", "Params.pad4_length")
pad4.Midplane = True

doc.recompute()
